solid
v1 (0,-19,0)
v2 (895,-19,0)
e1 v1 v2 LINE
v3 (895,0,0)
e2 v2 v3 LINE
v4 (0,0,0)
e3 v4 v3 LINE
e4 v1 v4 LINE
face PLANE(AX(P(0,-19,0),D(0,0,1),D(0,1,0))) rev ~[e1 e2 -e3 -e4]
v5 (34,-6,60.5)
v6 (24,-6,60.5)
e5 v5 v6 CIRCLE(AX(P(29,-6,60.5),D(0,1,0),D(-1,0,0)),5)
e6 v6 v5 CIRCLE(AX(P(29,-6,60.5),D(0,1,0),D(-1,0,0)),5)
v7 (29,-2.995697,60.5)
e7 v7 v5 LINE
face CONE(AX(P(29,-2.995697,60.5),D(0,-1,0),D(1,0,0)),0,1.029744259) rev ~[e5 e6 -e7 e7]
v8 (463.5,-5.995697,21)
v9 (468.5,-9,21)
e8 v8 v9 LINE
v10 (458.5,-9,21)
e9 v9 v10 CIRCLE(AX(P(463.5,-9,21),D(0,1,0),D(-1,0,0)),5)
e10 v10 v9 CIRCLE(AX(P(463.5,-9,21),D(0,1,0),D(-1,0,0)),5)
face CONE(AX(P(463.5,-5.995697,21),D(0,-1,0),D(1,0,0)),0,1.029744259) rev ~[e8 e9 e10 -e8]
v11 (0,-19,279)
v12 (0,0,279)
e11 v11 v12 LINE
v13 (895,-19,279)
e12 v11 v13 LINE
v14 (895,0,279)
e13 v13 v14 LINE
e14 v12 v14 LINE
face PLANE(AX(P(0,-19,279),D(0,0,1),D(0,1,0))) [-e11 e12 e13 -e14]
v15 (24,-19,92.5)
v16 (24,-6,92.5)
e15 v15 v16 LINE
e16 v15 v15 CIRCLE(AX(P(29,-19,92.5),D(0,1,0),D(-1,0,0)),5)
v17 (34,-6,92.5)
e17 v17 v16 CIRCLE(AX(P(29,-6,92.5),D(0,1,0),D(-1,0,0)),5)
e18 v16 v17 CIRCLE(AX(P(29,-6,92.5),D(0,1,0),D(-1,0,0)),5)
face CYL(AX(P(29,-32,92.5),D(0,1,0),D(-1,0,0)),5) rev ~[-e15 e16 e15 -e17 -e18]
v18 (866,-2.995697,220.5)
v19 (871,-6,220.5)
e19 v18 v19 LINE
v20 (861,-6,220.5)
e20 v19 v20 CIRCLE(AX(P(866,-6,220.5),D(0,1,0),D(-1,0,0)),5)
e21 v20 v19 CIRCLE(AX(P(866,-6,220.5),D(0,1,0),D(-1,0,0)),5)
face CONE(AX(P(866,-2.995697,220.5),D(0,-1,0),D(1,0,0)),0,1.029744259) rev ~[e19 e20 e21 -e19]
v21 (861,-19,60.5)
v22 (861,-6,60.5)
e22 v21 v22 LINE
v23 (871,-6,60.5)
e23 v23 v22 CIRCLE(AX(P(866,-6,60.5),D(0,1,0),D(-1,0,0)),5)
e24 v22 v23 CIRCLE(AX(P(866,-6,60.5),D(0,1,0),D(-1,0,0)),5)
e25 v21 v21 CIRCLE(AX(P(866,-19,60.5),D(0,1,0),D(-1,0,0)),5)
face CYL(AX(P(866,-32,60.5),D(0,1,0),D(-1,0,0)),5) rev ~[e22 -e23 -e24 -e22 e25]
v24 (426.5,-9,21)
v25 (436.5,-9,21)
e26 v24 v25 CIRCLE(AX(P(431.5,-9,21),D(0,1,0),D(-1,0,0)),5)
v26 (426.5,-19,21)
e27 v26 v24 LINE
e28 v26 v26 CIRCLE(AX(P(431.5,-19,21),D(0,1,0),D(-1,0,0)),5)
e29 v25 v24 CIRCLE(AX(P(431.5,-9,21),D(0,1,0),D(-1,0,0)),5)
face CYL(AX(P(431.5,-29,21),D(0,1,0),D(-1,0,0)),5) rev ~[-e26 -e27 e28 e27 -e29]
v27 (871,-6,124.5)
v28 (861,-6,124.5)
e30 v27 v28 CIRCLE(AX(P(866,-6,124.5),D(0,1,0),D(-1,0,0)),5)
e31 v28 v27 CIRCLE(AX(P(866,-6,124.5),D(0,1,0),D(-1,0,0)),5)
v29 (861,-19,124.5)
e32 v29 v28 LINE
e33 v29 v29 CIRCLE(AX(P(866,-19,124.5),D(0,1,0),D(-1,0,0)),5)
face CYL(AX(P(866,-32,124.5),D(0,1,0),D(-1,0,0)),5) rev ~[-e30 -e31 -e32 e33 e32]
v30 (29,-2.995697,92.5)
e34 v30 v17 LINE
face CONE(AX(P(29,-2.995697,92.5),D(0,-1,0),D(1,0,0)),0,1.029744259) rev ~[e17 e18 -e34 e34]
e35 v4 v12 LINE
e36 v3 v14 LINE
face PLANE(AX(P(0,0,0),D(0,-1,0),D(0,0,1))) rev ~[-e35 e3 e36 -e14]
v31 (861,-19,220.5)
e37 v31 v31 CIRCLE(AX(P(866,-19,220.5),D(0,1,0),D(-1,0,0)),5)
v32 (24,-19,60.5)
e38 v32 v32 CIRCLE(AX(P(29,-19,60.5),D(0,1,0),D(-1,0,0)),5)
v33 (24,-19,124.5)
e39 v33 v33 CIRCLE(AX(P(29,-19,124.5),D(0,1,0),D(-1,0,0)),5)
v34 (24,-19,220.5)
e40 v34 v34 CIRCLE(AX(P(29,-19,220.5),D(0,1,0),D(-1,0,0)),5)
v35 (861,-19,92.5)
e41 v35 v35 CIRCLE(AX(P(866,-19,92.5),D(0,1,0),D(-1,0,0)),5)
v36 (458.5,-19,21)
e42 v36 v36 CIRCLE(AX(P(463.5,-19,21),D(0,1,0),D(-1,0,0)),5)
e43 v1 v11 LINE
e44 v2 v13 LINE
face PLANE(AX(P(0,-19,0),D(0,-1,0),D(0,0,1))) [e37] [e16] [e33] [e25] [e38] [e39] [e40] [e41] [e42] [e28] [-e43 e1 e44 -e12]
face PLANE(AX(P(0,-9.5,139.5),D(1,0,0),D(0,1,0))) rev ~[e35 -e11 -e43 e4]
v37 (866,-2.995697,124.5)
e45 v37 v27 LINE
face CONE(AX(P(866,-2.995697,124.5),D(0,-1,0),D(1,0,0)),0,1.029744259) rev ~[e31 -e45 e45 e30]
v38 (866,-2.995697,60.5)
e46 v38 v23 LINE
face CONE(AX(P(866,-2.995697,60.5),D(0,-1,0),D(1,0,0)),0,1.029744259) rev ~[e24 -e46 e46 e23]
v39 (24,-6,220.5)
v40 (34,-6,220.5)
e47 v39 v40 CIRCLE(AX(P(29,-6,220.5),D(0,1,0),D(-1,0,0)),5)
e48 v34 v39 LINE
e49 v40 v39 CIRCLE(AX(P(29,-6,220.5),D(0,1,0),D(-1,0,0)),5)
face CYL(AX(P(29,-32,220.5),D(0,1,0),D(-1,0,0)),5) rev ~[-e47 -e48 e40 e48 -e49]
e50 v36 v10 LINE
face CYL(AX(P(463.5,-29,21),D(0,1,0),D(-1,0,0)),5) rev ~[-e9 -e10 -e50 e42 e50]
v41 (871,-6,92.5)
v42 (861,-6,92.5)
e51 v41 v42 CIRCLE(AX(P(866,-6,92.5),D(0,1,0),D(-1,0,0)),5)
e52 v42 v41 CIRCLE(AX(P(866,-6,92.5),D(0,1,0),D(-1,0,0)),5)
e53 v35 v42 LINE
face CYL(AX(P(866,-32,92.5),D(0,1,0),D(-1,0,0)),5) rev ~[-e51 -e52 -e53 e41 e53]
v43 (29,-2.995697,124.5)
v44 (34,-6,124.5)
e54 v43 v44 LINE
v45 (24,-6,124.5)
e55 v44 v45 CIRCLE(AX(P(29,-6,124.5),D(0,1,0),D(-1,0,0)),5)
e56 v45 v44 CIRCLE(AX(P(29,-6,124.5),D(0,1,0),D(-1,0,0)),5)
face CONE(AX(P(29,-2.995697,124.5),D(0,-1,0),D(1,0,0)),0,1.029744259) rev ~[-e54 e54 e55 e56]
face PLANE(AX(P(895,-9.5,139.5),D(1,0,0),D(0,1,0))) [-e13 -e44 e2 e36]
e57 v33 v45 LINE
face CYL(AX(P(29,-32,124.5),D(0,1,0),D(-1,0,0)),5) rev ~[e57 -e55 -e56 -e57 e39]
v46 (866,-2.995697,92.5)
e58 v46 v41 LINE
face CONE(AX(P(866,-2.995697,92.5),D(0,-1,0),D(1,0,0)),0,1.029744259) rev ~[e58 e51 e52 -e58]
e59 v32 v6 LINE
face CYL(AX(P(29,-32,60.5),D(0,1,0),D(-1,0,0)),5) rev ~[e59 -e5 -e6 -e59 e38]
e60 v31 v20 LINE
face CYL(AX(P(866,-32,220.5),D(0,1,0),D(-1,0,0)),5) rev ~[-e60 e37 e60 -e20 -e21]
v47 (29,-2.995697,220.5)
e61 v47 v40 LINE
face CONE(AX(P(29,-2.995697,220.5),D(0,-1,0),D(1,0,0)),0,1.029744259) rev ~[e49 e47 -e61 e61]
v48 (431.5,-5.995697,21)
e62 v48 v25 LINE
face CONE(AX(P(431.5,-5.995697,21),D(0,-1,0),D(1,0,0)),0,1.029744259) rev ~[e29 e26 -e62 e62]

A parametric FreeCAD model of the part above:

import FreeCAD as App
import Part
import Sketcher

V = App.Vector
Q = App.Units.Quantity

doc = App.newDocument("Part")
body = doc.addObject("PartDesign::Body", "Body")

# Sketch on YZ plane
sketch1 = body.newObject("Sketcher::SketchObject", "Sketch")
sketch1.AttachmentSupport = (doc.getObject("YZ_Plane"), [""])
sketch1.MapMode = "FlatFace"
sketch1.addGeometry([
    Part.LineSegment(V(-19, 279, 0), V(-19, 0, 0)),
    Part.LineSegment(V(-19, 0, 0), V(0, 0, 0)),
    Part.LineSegment(V(0, 0, 0), V(0, 279, 0)),
    Part.LineSegment(V(0, 279, 0), V(-19, 279, 0)),
], False)
sketch1.addConstraint([
    Sketcher.Constraint("Coincident", 0, 2, 1, 1),
    Sketcher.Constraint("Coincident", 1, 2, 2, 1),
    Sketcher.Constraint("Coincident", 2, 2, 3, 1),
    Sketcher.Constraint("Coincident", 3, 2, 0, 1),
    Sketcher.Constraint("Vertical", 0),
    Sketcher.Constraint("Horizontal", 1),
    Sketcher.Constraint("Vertical", 2),
    Sketcher.Constraint("Horizontal", 3),
    Sketcher.Constraint("Coincident", 1, 2, -1, 1),
    Sketcher.Constraint("DistanceX", 1, 1, 1, 2, Q("19 mm")),
    Sketcher.Constraint("DistanceY", 0, 2, 0, 1, Q("279 mm")),
])
pad1 = body.newObject("PartDesign::Pad", "Pad")
pad1.Profile = sketch1
pad1.Length = 895

# Sketch on XZ plane
sketch2 = body.newObject("Sketcher::SketchObject", "Sketch001")
sketch2.AttachmentSupport = (doc.getObject("XZ_Plane"), [""])
sketch2.MapMode = "FlatFace"
sketch2.AttachmentOffset = App.Placement(V(0, 0, 19), App.Rotation())
sketch2.addGeometry([
    Part.Circle(V(29, 220.5, 0), V(0, 0, 1), 5),  # 0
    Part.Circle(V(29, 124.5, 0), V(0, 0, 1), 5),  # 1
    Part.Circle(V(29, 92.5, 0), V(0, 0, 1), 5),  # 2
    Part.Circle(V(29, 60.5, 0), V(0, 0, 1), 5),  # 3
    Part.Circle(V(866, 60.5, 0), V(0, 0, 1), 5),  # 4
    Part.Circle(V(866, 92.5, 0), V(0, 0, 1), 5),  # 5
    Part.Circle(V(866, 124.5, 0), V(0, 0, 1), 5),  # 6
    Part.Circle(V(866, 220.5, 0), V(0, 0, 1), 5),  # 7
], False)
sketch2.addConstraint([
    Sketcher.Constraint("Equal", 0, 1),
    Sketcher.Constraint("Equal", 1, 2),
    Sketcher.Constraint("Equal", 2, 3),
    Sketcher.Constraint("Equal", 3, 4),
    Sketcher.Constraint("Equal", 4, 5),
    Sketcher.Constraint("Equal", 5, 6),
    Sketcher.Constraint("Equal", 6, 7),
    Sketcher.Constraint("Horizontal", 3, 3, 4, 3),
    Sketcher.Constraint("Horizontal", 2, 3, 5, 3),
    Sketcher.Constraint("Horizontal", 1, 3, 6, 3),
    Sketcher.Constraint("Horizontal", 0, 3, 7, 3),
    Sketcher.Constraint("Vertical", 0, 3, 1, 3),
    Sketcher.Constraint("Vertical", 1, 3, 2, 3),
    Sketcher.Constraint("Vertical", 2, 3, 3, 3),
    Sketcher.Constraint("Vertical", 4, 3, 5, 3),
    Sketcher.Constraint("Vertical", 5, 3, 6, 3),
    Sketcher.Constraint("Vertical", 6, 3, 7, 3),
    Sketcher.Constraint("Diameter", 0, Q("10 mm")),
    Sketcher.Constraint("DistanceX", -1, 1, 0, 3, Q("29 mm")),
    Sketcher.Constraint("DistanceX", -1, 1, 4, 3, Q("866 mm")),
    Sketcher.Constraint("DistanceY", 1, 3, 0, 3, Q("96 mm")),
    Sketcher.Constraint("DistanceY", 2, 3, 1, 3, Q("32 mm")),
    Sketcher.Constraint("DistanceY", 3, 3, 2, 3, Q("32 mm")),
    Sketcher.Constraint("DistanceY", -1, 1, 0, 3, Q("220.5 mm")),
])
doc.recompute()
hole = body.newObject("PartDesign::Hole", "Hole")
hole.Profile = sketch2
hole.ThreadType = "None"
hole.Diameter = 10
hole.DepthType = "Dimension"
hole.Depth = 13
hole.DrillPoint = "Angled"
hole.DrillPointAngle = 118

# Sketch on XZ plane
sketch3 = body.newObject("Sketcher::SketchObject", "Sketch002")
sketch3.AttachmentSupport = (doc.getObject("XZ_Plane"), [""])
sketch3.MapMode = "FlatFace"
sketch3.AttachmentOffset = App.Placement(V(0, 0, 19), App.Rotation())
sketch3.addGeometry([
    Part.Circle(V(431.5, 21, 0), V(0, 0, 1), 5),
    Part.Circle(V(463.5, 21, 0), V(0, 0, 1), 5),
], False)
sketch3.addConstraint([
    Sketcher.Constraint("Equal", 0, 1),
    Sketcher.Constraint("Horizontal", 0, 3, 1, 3),
    Sketcher.Constraint("Diameter", 0, Q("10 mm")),
    Sketcher.Constraint("DistanceY", -1, 1, 0, 3, Q("21 mm")),
    Sketcher.Constraint("DistanceX", 0, 3, 1, 3, Q("32 mm")),
    Sketcher.Constraint("DistanceX", -1, 1, 0, 3, Q("431.5 mm")),
])
doc.recompute()
hole2 = body.newObject("PartDesign::Hole", "Hole001")
hole2.Profile = sketch3
hole2.ThreadType = "None"
hole2.Diameter = 10
hole2.DepthType = "Dimension"
hole2.Depth = 10
hole2.DrillPoint = "Angled"
hole2.DrillPointAngle = 118

doc.recompute()
